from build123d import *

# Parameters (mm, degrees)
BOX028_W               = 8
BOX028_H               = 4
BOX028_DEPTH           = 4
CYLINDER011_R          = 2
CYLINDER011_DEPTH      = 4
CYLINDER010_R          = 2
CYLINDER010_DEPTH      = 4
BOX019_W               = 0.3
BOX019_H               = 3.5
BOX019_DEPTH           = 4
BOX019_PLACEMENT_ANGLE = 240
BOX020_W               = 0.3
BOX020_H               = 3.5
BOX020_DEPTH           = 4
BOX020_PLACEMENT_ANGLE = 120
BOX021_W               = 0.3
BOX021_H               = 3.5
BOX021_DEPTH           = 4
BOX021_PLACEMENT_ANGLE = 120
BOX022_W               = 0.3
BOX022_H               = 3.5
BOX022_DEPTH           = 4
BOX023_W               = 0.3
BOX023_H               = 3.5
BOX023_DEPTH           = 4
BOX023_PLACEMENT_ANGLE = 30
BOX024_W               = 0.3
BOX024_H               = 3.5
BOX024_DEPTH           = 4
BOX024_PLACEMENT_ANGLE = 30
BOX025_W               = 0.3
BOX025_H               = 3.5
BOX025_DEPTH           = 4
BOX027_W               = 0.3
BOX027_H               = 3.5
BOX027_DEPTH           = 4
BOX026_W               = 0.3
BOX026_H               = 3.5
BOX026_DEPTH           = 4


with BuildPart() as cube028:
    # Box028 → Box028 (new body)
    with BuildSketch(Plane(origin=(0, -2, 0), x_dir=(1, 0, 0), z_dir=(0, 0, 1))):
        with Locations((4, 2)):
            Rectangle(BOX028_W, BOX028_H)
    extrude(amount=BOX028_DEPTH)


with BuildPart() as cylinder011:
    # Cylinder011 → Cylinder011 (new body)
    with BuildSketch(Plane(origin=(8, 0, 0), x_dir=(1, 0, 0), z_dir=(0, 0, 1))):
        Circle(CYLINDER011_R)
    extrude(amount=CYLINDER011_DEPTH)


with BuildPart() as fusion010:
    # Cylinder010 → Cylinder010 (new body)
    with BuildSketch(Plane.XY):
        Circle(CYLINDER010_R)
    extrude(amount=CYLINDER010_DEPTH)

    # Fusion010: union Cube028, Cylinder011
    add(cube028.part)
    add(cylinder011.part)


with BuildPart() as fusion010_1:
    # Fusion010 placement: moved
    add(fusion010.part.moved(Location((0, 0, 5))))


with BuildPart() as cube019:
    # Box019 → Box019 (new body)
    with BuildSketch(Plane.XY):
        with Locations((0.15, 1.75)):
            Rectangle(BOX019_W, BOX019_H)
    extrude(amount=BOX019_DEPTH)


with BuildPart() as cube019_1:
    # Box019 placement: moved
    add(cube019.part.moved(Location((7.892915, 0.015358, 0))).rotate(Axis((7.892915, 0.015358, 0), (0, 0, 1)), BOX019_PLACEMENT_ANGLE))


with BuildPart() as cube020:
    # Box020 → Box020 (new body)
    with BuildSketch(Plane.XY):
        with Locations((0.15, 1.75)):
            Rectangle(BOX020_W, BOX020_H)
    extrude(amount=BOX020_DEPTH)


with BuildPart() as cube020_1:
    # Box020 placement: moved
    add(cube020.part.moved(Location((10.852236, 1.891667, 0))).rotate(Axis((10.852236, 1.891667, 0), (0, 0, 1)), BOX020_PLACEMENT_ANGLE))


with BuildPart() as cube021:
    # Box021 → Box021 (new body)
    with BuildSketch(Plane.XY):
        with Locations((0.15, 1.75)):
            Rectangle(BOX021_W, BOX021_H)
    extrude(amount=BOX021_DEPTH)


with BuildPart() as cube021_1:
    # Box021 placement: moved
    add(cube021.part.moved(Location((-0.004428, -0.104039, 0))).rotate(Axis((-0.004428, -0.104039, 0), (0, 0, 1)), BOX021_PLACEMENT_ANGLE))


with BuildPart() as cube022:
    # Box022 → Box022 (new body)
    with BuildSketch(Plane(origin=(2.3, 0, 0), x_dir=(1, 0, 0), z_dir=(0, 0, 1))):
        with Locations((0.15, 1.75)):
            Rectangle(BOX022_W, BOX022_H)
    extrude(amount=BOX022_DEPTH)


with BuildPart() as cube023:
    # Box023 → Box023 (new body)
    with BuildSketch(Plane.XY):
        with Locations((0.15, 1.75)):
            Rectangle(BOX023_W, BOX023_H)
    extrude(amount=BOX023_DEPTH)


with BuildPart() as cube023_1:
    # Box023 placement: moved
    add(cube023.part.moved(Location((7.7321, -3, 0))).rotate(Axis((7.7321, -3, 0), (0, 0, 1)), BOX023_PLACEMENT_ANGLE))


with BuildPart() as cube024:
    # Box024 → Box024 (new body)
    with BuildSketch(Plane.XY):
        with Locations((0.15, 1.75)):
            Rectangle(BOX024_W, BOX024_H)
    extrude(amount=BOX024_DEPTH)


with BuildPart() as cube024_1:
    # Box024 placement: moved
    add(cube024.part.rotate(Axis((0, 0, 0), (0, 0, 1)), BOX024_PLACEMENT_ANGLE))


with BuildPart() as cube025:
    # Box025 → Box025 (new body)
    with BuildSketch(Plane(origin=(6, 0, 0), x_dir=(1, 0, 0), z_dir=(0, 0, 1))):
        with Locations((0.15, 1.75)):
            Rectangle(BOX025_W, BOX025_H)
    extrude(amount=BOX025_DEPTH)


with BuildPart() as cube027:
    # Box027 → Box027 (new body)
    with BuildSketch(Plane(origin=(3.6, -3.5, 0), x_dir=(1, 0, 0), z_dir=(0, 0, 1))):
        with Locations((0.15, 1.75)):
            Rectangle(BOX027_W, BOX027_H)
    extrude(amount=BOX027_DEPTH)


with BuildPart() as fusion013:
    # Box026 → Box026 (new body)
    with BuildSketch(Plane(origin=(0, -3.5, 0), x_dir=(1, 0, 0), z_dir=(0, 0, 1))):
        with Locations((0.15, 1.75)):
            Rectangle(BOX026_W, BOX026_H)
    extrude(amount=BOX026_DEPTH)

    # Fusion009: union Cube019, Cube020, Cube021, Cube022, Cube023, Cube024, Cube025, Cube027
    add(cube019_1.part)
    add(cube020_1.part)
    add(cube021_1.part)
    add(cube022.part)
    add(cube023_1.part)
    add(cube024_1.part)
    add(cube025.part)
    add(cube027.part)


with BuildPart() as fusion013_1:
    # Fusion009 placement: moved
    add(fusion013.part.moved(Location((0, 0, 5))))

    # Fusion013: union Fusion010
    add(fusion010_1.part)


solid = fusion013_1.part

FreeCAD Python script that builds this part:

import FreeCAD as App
import Part
import Sketcher

doc = App.newDocument("Part")
body = doc.addObject("PartDesign::Body", "Body")

sketch1 = body.newObject("Sketcher::SketchObject", "Sketch")
sketch1.AttachmentSupport = (doc.getObject("XY_Plane"), [""])
sketch1.MapMode = "FlatFace"
sketch1.addGeometry(Part.LineSegment(App.Vector(0, 2, 0), App.Vector(0, -2, 0)), False)
sketch1.addGeometry(Part.LineSegment(App.Vector(0, -2, 0), App.Vector(8, -2, 0)), False)
sketch1.addGeometry(Part.LineSegment(App.Vector(8, -2, 0), App.Vector(8, 2, 0)), False)
sketch1.addGeometry(Part.LineSegment(App.Vector(8, 2, 0), App.Vector(0, 2, 0)), False)
sketch1.addConstraint(Sketcher.Constraint("Coincident", 0, 2, 1, 1))
sketch1.addConstraint(Sketcher.Constraint("Coincident", 1, 2, 2, 1))
sketch1.addConstraint(Sketcher.Constraint("Coincident", 2, 2, 3, 1))
sketch1.addConstraint(Sketcher.Constraint("Coincident", 3, 2, 0, 1))
sketch1.addConstraint(Sketcher.Constraint("Vertical", 0))
sketch1.addConstraint(Sketcher.Constraint("Horizontal", 1))
sketch1.addConstraint(Sketcher.Constraint("Vertical", 2))
sketch1.addConstraint(Sketcher.Constraint("Horizontal", 3))
sketch1.addConstraint(Sketcher.Constraint("Symmetric", 0, 2, 3, 2, -1, 1))
sketch1.addConstraint(Sketcher.Constraint("DistanceX", 1, 1, 1, 2, 8.0))
sketch1.addConstraint(Sketcher.Constraint("DistanceY", 0, 2, 0, 1, 4.0))
pad1 = body.newObject("PartDesign::Pad", "Pad")
pad1.Profile = sketch1
pad1.Length = 4
body2 = doc.addObject("PartDesign::Body", "Body001")

sketch2 = body2.newObject("Sketcher::SketchObject", "Sketch001")
sketch2.AttachmentSupport = (doc.getObject("XY_Plane001"), [""])
sketch2.MapMode = "FlatFace"
sketch2.addGeometry(Part.Circle(App.Vector(8, 0, 0), App.Vector(0, 0, 1), 2), False)
sketch2.addConstraint(Sketcher.Constraint("PointOnObject", 0, 3, -1))
sketch2.addConstraint(Sketcher.Constraint("Diameter", 0, 4.0))
sketch2.addConstraint(Sketcher.Constraint("DistanceX", -1, 1, 0, 3, 8.0))
pad2 = body2.newObject("PartDesign::Pad", "Pad001")
pad2.Profile = sketch2
pad2.Length = 4
body3 = doc.addObject("PartDesign::Body", "Body002")

sketch3 = body3.newObject("Sketcher::SketchObject", "Sketch002")
sketch3.AttachmentSupport = (doc.getObject("XY_Plane002"), [""])
sketch3.MapMode = "FlatFace"
sketch3.addGeometry(Part.Circle(App.Vector(0, 0, 0), App.Vector(0, 0, 1), 2), False)
sketch3.addConstraint(Sketcher.Constraint("Coincident", 0, 3, -1, 1))
sketch3.addConstraint(Sketcher.Constraint("Diameter", 0, 4.0))
pad3 = body3.newObject("PartDesign::Pad", "Pad002")
pad3.Profile = sketch3
pad3.Length = 4
doc.recompute()

boolean = body3.newObject("PartDesign::Boolean", "Boolean")
boolean.Type = "Fuse"
boolean.addObjects([body])
doc.recompute()

boolean2 = body3.newObject("PartDesign::Boolean", "Boolean001")
boolean2.Type = "Fuse"
boolean2.addObjects([body2])
body4 = doc.addObject("PartDesign::Body", "Body003")
doc.recompute()

body3.Placement = App.Placement(App.Vector(0, 0, 5), App.Rotation(App.Vector(0, 0, 1), 0))
boolean3 = body4.newObject("PartDesign::Boolean", "Boolean002")
boolean3.Type = "Fuse"
boolean3.addObjects([body3])
body5 = doc.addObject("PartDesign::Body", "Body004")

sketch4 = body5.newObject("Sketcher::SketchObject", "Sketch003")
sketch4.AttachmentSupport = (doc.getObject("XY_Plane004"), [""])
sketch4.MapMode = "FlatFace"
sketch4.addGeometry(Part.LineSegment(App.Vector(0, 3.5, 0), App.Vector(0, 0, 0)), False)
sketch4.addGeometry(Part.LineSegment(App.Vector(0, 0, 0), App.Vector(0.3, 0, 0)), False)
sketch4.addGeometry(Part.LineSegment(App.Vector(0.3, 0, 0), App.Vector(0.3, 3.5, 0)), False)
sketch4.addGeometry(Part.LineSegment(App.Vector(0.3, 3.5, 0), App.Vector(0, 3.5, 0)), False)
sketch4.addConstraint(Sketcher.Constraint("Coincident", 0, 2, 1, 1))
sketch4.addConstraint(Sketcher.Constraint("Coincident", 1, 2, 2, 1))
sketch4.addConstraint(Sketcher.Constraint("Coincident", 2, 2, 3, 1))
sketch4.addConstraint(Sketcher.Constraint("Coincident", 3, 2, 0, 1))
sketch4.addConstraint(Sketcher.Constraint("Vertical", 0))
sketch4.addConstraint(Sketcher.Constraint("Horizontal", 1))
sketch4.addConstraint(Sketcher.Constraint("Vertical", 2))
sketch4.addConstraint(Sketcher.Constraint("Horizontal", 3))
sketch4.addConstraint(Sketcher.Constraint("Coincident", 0, 2, -1, 1))
sketch4.addConstraint(Sketcher.Constraint("DistanceX", 1, 1, 1, 2, 0.3))
sketch4.addConstraint(Sketcher.Constraint("DistanceY", 0, 2, 0, 1, 3.5))
pad4 = body5.newObject("PartDesign::Pad", "Pad003")
pad4.Profile = sketch4
pad4.Length = 4
body6 = doc.addObject("PartDesign::Body", "Body005")
doc.recompute()

body5.Placement = App.Placement(App.Vector(7.892915, 0.015358, 0), App.Rotation(App.Vector(0, 0, 1), 240))
boolean4 = body6.newObject("PartDesign::Boolean", "Boolean003")
boolean4.Type = "Fuse"
boolean4.addObjects([body5])
body7 = doc.addObject("PartDesign::Body", "Body006")

sketch5 = body7.newObject("Sketcher::SketchObject", "Sketch004")
sketch5.AttachmentSupport = (doc.getObject("XY_Plane006"), [""])
sketch5.MapMode = "FlatFace"
sketch5.addGeometry(Part.LineSegment(App.Vector(0, 3.5, 0), App.Vector(0, 0, 0)), False)
sketch5.addGeometry(Part.LineSegment(App.Vector(0, 0, 0), App.Vector(0.3, 0, 0)), False)
sketch5.addGeometry(Part.LineSegment(App.Vector(0.3, 0, 0), App.Vector(0.3, 3.5, 0)), False)
sketch5.addGeometry(Part.LineSegment(App.Vector(0.3, 3.5, 0), App.Vector(0, 3.5, 0)), False)
sketch5.addConstraint(Sketcher.Constraint("Coincident", 0, 2, 1, 1))
sketch5.addConstraint(Sketcher.Constraint("Coincident", 1, 2, 2, 1))
sketch5.addConstraint(Sketcher.Constraint("Coincident", 2, 2, 3, 1))
sketch5.addConstraint(Sketcher.Constraint("Coincident", 3, 2, 0, 1))
sketch5.addConstraint(Sketcher.Constraint("Vertical", 0))
sketch5.addConstraint(Sketcher.Constraint("Horizontal", 1))
sketch5.addConstraint(Sketcher.Constraint("Vertical", 2))
sketch5.addConstraint(Sketcher.Constraint("Horizontal", 3))
sketch5.addConstraint(Sketcher.Constraint("Coincident", 0, 2, -1, 1))
sketch5.addConstraint(Sketcher.Constraint("DistanceX", 1, 1, 1, 2, 0.3))
sketch5.addConstraint(Sketcher.Constraint("DistanceY", 0, 2, 0, 1, 3.5))
pad5 = body7.newObject("PartDesign::Pad", "Pad004")
pad5.Profile = sketch5
pad5.Length = 4
body8 = doc.addObject("PartDesign::Body", "Body007")
doc.recompute()

body7.Placement = App.Placement(App.Vector(10.852236, 1.891667, 0), App.Rotation(App.Vector(0, 0, 1), 120))
boolean5 = body8.newObject("PartDesign::Boolean", "Boolean004")
boolean5.Type = "Fuse"
boolean5.addObjects([body7])
body9 = doc.addObject("PartDesign::Body", "Body008")

sketch6 = body9.newObject("Sketcher::SketchObject", "Sketch005")
sketch6.AttachmentSupport = (doc.getObject("XY_Plane008"), [""])
sketch6.MapMode = "FlatFace"
sketch6.addGeometry(Part.LineSegment(App.Vector(0, 3.5, 0), App.Vector(0, 0, 0)), False)
sketch6.addGeometry(Part.LineSegment(App.Vector(0, 0, 0), App.Vector(0.3, 0, 0)), False)
sketch6.addGeometry(Part.LineSegment(App.Vector(0.3, 0, 0), App.Vector(0.3, 3.5, 0)), False)
sketch6.addGeometry(Part.LineSegment(App.Vector(0.3, 3.5, 0), App.Vector(0, 3.5, 0)), False)
sketch6.addConstraint(Sketcher.Constraint("Coincident", 0, 2, 1, 1))
sketch6.addConstraint(Sketcher.Constraint("Coincident", 1, 2, 2, 1))
sketch6.addConstraint(Sketcher.Constraint("Coincident", 2, 2, 3, 1))
sketch6.addConstraint(Sketcher.Constraint("Coincident", 3, 2, 0, 1))
sketch6.addConstraint(Sketcher.Constraint("Vertical", 0))
sketch6.addConstraint(Sketcher.Constraint("Horizontal", 1))
sketch6.addConstraint(Sketcher.Constraint("Vertical", 2))
sketch6.addConstraint(Sketcher.Constraint("Horizontal", 3))
sketch6.addConstraint(Sketcher.Constraint("Coincident", 0, 2, -1, 1))
sketch6.addConstraint(Sketcher.Constraint("DistanceX", 1, 1, 1, 2, 0.3))
sketch6.addConstraint(Sketcher.Constraint("DistanceY", 0, 2, 0, 1, 3.5))
pad6 = body9.newObject("PartDesign::Pad", "Pad005")
pad6.Profile = sketch6
pad6.Length = 4
body10 = doc.addObject("PartDesign::Body", "Body009")
doc.recompute()

body9.Placement = App.Placement(App.Vector(-0.004428, -0.104039, 0), App.Rotation(App.Vector(0, 0, 1), 120))
boolean6 = body10.newObject("PartDesign::Boolean", "Boolean005")
boolean6.Type = "Fuse"
boolean6.addObjects([body9])
body11 = doc.addObject("PartDesign::Body", "Body010")

sketch7 = body11.newObject("Sketcher::SketchObject", "Sketch006")
sketch7.AttachmentSupport = (doc.getObject("XY_Plane010"), [""])
sketch7.MapMode = "FlatFace"
sketch7.addGeometry(Part.LineSegment(App.Vector(2.3, 3.5, 0), App.Vector(2.3, 0, 0)), False)
sketch7.addGeometry(Part.LineSegment(App.Vector(2.3, 0, 0), App.Vector(2.6, 0, 0)), False)
sketch7.addGeometry(Part.LineSegment(App.Vector(2.6, 0, 0), App.Vector(2.6, 3.5, 0)), False)
sketch7.addGeometry(Part.LineSegment(App.Vector(2.6, 3.5, 0), App.Vector(2.3, 3.5, 0)), False)
sketch7.addConstraint(Sketcher.Constraint("Coincident", 0, 2, 1, 1))
sketch7.addConstraint(Sketcher.Constraint("Coincident", 1, 2, 2, 1))
sketch7.addConstraint(Sketcher.Constraint("Coincident", 2, 2, 3, 1))
sketch7.addConstraint(Sketcher.Constraint("Coincident", 3, 2, 0, 1))
sketch7.addConstraint(Sketcher.Constraint("Vertical", 0))
sketch7.addConstraint(Sketcher.Constraint("Horizontal", 1))
sketch7.addConstraint(Sketcher.Constraint("Vertical", 2))
sketch7.addConstraint(Sketcher.Constraint("Horizontal", 3))
sketch7.addConstraint(Sketcher.Constraint("PointOnObject", 0, 2, -1))
sketch7.addConstraint(Sketcher.Constraint("DistanceX", 1, 1, 1, 2, 0.3))
sketch7.addConstraint(Sketcher.Constraint("DistanceY", 0, 2, 0, 1, 3.5))
sketch7.addConstraint(Sketcher.Constraint("DistanceX", -1, 1, 0, 2, 2.3))
pad7 = body11.newObject("PartDesign::Pad", "Pad006")
pad7.Profile = sketch7
pad7.Length = 4
body12 = doc.addObject("PartDesign::Body", "Body011")

sketch8 = body12.newObject("Sketcher::SketchObject", "Sketch007")
sketch8.AttachmentSupport = (doc.getObject("XY_Plane011"), [""])
sketch8.MapMode = "FlatFace"
sketch8.addGeometry(Part.LineSegment(App.Vector(0, 3.5, 0), App.Vector(0, 0, 0)), False)
sketch8.addGeometry(Part.LineSegment(App.Vector(0, 0, 0), App.Vector(0.3, 0, 0)), False)
sketch8.addGeometry(Part.LineSegment(App.Vector(0.3, 0, 0), App.Vector(0.3, 3.5, 0)), False)
sketch8.addGeometry(Part.LineSegment(App.Vector(0.3, 3.5, 0), App.Vector(0, 3.5, 0)), False)
sketch8.addConstraint(Sketcher.Constraint("Coincident", 0, 2, 1, 1))
sketch8.addConstraint(Sketcher.Constraint("Coincident", 1, 2, 2, 1))
sketch8.addConstraint(Sketcher.Constraint("Coincident", 2, 2, 3, 1))
sketch8.addConstraint(Sketcher.Constraint("Coincident", 3, 2, 0, 1))
sketch8.addConstraint(Sketcher.Constraint("Vertical", 0))
sketch8.addConstraint(Sketcher.Constraint("Horizontal", 1))
sketch8.addConstraint(Sketcher.Constraint("Vertical", 2))
sketch8.addConstraint(Sketcher.Constraint("Horizontal", 3))
sketch8.addConstraint(Sketcher.Constraint("Coincident", 0, 2, -1, 1))
sketch8.addConstraint(Sketcher.Constraint("DistanceX", 1, 1, 1, 2, 0.3))
sketch8.addConstraint(Sketcher.Constraint("DistanceY", 0, 2, 0, 1, 3.5))
pad8 = body12.newObject("PartDesign::Pad", "Pad007")
pad8.Profile = sketch8
pad8.Length = 4
body13 = doc.addObject("PartDesign::Body", "Body012")
doc.recompute()

body12.Placement = App.Placement(App.Vector(7.7321, -3, 0), App.Rotation(App.Vector(0, 0, 1), 30))
boolean7 = body13.newObject("PartDesign::Boolean", "Boolean006")
boolean7.Type = "Fuse"
boolean7.addObjects([body12])
body14 = doc.addObject("PartDesign::Body", "Body013")

sketch9 = body14.newObject("Sketcher::SketchObject", "Sketch008")
sketch9.AttachmentSupport = (doc.getObject("XY_Plane013"), [""])
sketch9.MapMode = "FlatFace"
sketch9.addGeometry(Part.LineSegment(App.Vector(0, 3.5, 0), App.Vector(0, 0, 0)), False)
sketch9.addGeometry(Part.LineSegment(App.Vector(0, 0, 0), App.Vector(0.3, 0, 0)), False)
sketch9.addGeometry(Part.LineSegment(App.Vector(0.3, 0, 0), App.Vector(0.3, 3.5, 0)), False)
sketch9.addGeometry(Part.LineSegment(App.Vector(0.3, 3.5, 0), App.Vector(0, 3.5, 0)), False)
sketch9.addConstraint(Sketcher.Constraint("Coincident", 0, 2, 1, 1))
sketch9.addConstraint(Sketcher.Constraint("Coincident", 1, 2, 2, 1))
sketch9.addConstraint(Sketcher.Constraint("Coincident", 2, 2, 3, 1))
sketch9.addConstraint(Sketcher.Constraint("Coincident", 3, 2, 0, 1))
sketch9.addConstraint(Sketcher.Constraint("Vertical", 0))
sketch9.addConstraint(Sketcher.Constraint("Horizontal", 1))
sketch9.addConstraint(Sketcher.Constraint("Vertical", 2))
sketch9.addConstraint(Sketcher.Constraint("Horizontal", 3))
sketch9.addConstraint(Sketcher.Constraint("Coincident", 0, 2, -1, 1))
sketch9.addConstraint(Sketcher.Constraint("DistanceX", 1, 1, 1, 2, 0.3))
sketch9.addConstraint(Sketcher.Constraint("DistanceY", 0, 2, 0, 1, 3.5))
pad9 = body14.newObject("PartDesign::Pad", "Pad008")
pad9.Profile = sketch9
pad9.Length = 4
body15 = doc.addObject("PartDesign::Body", "Body014")
doc.recompute()

body14.Placement = App.Placement(App.Vector(0, 0, 0), App.Rotation(App.Vector(0, 0, 1), 30))
boolean8 = body15.newObject("PartDesign::Boolean", "Boolean007")
boolean8.Type = "Fuse"
boolean8.addObjects([body14])
body16 = doc.addObject("PartDesign::Body", "Body015")

sketch10 = body16.newObject("Sketcher::SketchObject", "Sketch009")
sketch10.AttachmentSupport = (doc.getObject("XY_Plane015"), [""])
sketch10.MapMode = "FlatFace"
sketch10.addGeometry(Part.LineSegment(App.Vector(6, 3.5, 0), App.Vector(6, 0, 0)), False)
sketch10.addGeometry(Part.LineSegment(App.Vector(6, 0, 0), App.Vector(6.3, 0, 0)), False)
sketch10.addGeometry(Part.LineSegment(App.Vector(6.3, 0, 0), App.Vector(6.3, 3.5, 0)), False)
sketch10.addGeometry(Part.LineSegment(App.Vector(6.3, 3.5, 0), App.Vector(6, 3.5, 0)), False)
sketch10.addConstraint(Sketcher.Constraint("Coincident", 0, 2, 1, 1))
sketch10.addConstraint(Sketcher.Constraint("Coincident", 1, 2, 2, 1))
sketch10.addConstraint(Sketcher.Constraint("Coincident", 2, 2, 3, 1))
sketch10.addConstraint(Sketcher.Constraint("Coincident", 3, 2, 0, 1))
sketch10.addConstraint(Sketcher.Constraint("Vertical", 0))
sketch10.addConstraint(Sketcher.Constraint("Horizontal", 1))
sketch10.addConstraint(Sketcher.Constraint("Vertical", 2))
sketch10.addConstraint(Sketcher.Constraint("Horizontal", 3))
sketch10.addConstraint(Sketcher.Constraint("PointOnObject", 0, 2, -1))
sketch10.addConstraint(Sketcher.Constraint("DistanceX", 1, 1, 1, 2, 0.3))
sketch10.addConstraint(Sketcher.Constraint("DistanceY", 0, 2, 0, 1, 3.5))
sketch10.addConstraint(Sketcher.Constraint("DistanceX", -1, 1, 0, 2, 6.0))
pad10 = body16.newObject("PartDesign::Pad", "Pad009")
pad10.Profile = sketch10
pad10.Length = 4
body17 = doc.addObject("PartDesign::Body", "Body016")

sketch11 = body17.newObject("Sketcher::SketchObject", "Sketch010")
sketch11.AttachmentSupport = (doc.getObject("XY_Plane016"), [""])
sketch11.MapMode = "FlatFace"
sketch11.addGeometry(Part.LineSegment(App.Vector(3.6, 0, 0), App.Vector(3.6, -3.5, 0)), False)
sketch11.addGeometry(Part.LineSegment(App.Vector(3.6, -3.5, 0), App.Vector(3.9, -3.5, 0)), False)
sketch11.addGeometry(Part.LineSegment(App.Vector(3.9, -3.5, 0), App.Vector(3.9, 0, 0)), False)
sketch11.addGeometry(Part.LineSegment(App.Vector(3.9, 0, 0), App.Vector(3.6, 0, 0)), False)
sketch11.addConstraint(Sketcher.Constraint("Coincident", 0, 2, 1, 1))
sketch11.addConstraint(Sketcher.Constraint("Coincident", 1, 2, 2, 1))
sketch11.addConstraint(Sketcher.Constraint("Coincident", 2, 2, 3, 1))
sketch11.addConstraint(Sketcher.Constraint("Coincident", 3, 2, 0, 1))
sketch11.addConstraint(Sketcher.Constraint("Vertical", 0))
sketch11.addConstraint(Sketcher.Constraint("Horizontal", 1))
sketch11.addConstraint(Sketcher.Constraint("Vertical", 2))
sketch11.addConstraint(Sketcher.Constraint("Horizontal", 3))
sketch11.addConstraint(Sketcher.Constraint("PointOnObject", 2, 2, -1))
sketch11.addConstraint(Sketcher.Constraint("DistanceX", 1, 1, 1, 2, 0.3))
sketch11.addConstraint(Sketcher.Constraint("DistanceY", 0, 2, 0, 1, 3.5))
sketch11.addConstraint(Sketcher.Constraint("DistanceX", -1, 1, 0, 2, 3.6))
pad11 = body17.newObject("PartDesign::Pad", "Pad010")
pad11.Profile = sketch11
pad11.Length = 4
body18 = doc.addObject("PartDesign::Body", "Body017")
body18.AllowCompound = True

sketch12 = body18.newObject("Sketcher::SketchObject", "Sketch011")
sketch12.AttachmentSupport = (doc.getObject("XY_Plane017"), [""])
sketch12.MapMode = "FlatFace"
sketch12.addGeometry(Part.LineSegment(App.Vector(0, 0, 0), App.Vector(0, -3.5, 0)), False)
sketch12.addGeometry(Part.LineSegment(App.Vector(0, -3.5, 0), App.Vector(0.3, -3.5, 0)), False)
sketch12.addGeometry(Part.LineSegment(App.Vector(0.3, -3.5, 0), App.Vector(0.3, 0, 0)), False)
sketch12.addGeometry(Part.LineSegment(App.Vector(0.3, 0, 0), App.Vector(0, 0, 0)), False)
sketch12.addConstraint(Sketcher.Constraint("Coincident", 0, 2, 1, 1))
sketch12.addConstraint(Sketcher.Constraint("Coincident", 1, 2, 2, 1))
sketch12.addConstraint(Sketcher.Constraint("Coincident", 2, 2, 3, 1))
sketch12.addConstraint(Sketcher.Constraint("Coincident", 3, 2, 0, 1))
sketch12.addConstraint(Sketcher.Constraint("Vertical", 0))
sketch12.addConstraint(Sketcher.Constraint("Horizontal", 1))
sketch12.addConstraint(Sketcher.Constraint("Vertical", 2))
sketch12.addConstraint(Sketcher.Constraint("Horizontal", 3))
sketch12.addConstraint(Sketcher.Constraint("Coincident", 3, 2, -1, 1))
sketch12.addConstraint(Sketcher.Constraint("DistanceX", 1, 1, 1, 2, 0.3))
sketch12.addConstraint(Sketcher.Constraint("DistanceY", 0, 2, 0, 1, 3.5))
pad12 = body18.newObject("PartDesign::Pad", "Pad011")
pad12.Profile = sketch12
pad12.Length = 4
doc.recompute()

boolean9 = body18.newObject("PartDesign::Boolean", "Boolean008")
boolean9.Type = "Fuse"
boolean9.addObjects([body6])
doc.recompute()

boolean10 = body18.newObject("PartDesign::Boolean", "Boolean009")
boolean10.Type = "Fuse"
boolean10.addObjects([body8])
doc.recompute()

boolean11 = body18.newObject("PartDesign::Boolean", "Boolean010")
boolean11.Type = "Fuse"
boolean11.addObjects([body10])
doc.recompute()

boolean12 = body18.newObject("PartDesign::Boolean", "Boolean011")
boolean12.Type = "Fuse"
boolean12.addObjects([body11])
doc.recompute()

boolean13 = body18.newObject("PartDesign::Boolean", "Boolean012")
boolean13.Type = "Fuse"
boolean13.addObjects([body13])
doc.recompute()

boolean14 = body18.newObject("PartDesign::Boolean", "Boolean013")
boolean14.Type = "Fuse"
boolean14.addObjects([body15])
doc.recompute()

boolean15 = body18.newObject("PartDesign::Boolean", "Boolean014")
boolean15.Type = "Fuse"
boolean15.addObjects([body16])
doc.recompute()

boolean16 = body18.newObject("PartDesign::Boolean", "Boolean015")
boolean16.Type = "Fuse"
boolean16.addObjects([body17])
body19 = doc.addObject("PartDesign::Body", "Body018")
body19.AllowCompound = True
doc.recompute()

body18.Placement = App.Placement(App.Vector(0, 0, 5), App.Rotation(App.Vector(0, 0, 1), 0))
boolean17 = body19.newObject("PartDesign::Boolean", "Boolean016")
boolean17.Type = "Fuse"
boolean17.addObjects([body18])
doc.recompute()

boolean18 = body19.newObject("PartDesign::Boolean", "Boolean017")
boolean18.Type = "Fuse"
boolean18.addObjects([body4])

doc.recompute()
